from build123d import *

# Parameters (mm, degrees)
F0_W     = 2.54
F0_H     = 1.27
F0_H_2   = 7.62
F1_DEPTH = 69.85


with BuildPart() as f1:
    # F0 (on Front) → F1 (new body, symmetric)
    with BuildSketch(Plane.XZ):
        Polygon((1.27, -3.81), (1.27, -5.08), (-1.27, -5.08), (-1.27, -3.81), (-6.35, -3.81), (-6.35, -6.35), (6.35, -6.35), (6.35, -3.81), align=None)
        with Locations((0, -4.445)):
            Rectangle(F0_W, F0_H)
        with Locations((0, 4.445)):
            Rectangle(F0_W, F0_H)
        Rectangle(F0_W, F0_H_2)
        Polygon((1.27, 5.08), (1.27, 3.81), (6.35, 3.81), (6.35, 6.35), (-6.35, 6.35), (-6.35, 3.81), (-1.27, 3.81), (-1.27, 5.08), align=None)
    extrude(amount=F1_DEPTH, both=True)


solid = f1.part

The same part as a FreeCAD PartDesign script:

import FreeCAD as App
import Part
import Sketcher
from FreeCAD import Vector
Q = App.Units.Quantity


def add_polygon(sketch, points):
    """Adds a closed chain of lines whose ends are joined by coincident constraints."""
    first, n = sketch.GeometryCount, len(points)
    for a, b in zip(points, points[1:] + points[:1]):
        sketch.addGeometry(Part.LineSegment(App.Vector(*a, 0), App.Vector(*b, 0)), False)
    for i in range(n):
        sketch.addConstraint(Sketcher.Constraint("Coincident", first + i, 2, first + (i + 1) % n, 1))

doc = App.newDocument("Part")
body = doc.addObject("PartDesign::Body", "Body")

# Sketch on XZ plane
sketch1 = doc.addObject("Sketcher::SketchObject", "Sketch")
body.addObject(sketch1)
sketch1.AttachmentSupport = (doc.XZ_Plane, [""])
sketch1.MapMode = "FlatFace"
add_polygon(sketch1, [(-6.35, -3.81), (-6.35, -6.35), (6.35, -6.35), (6.35, -3.81), (1.27, -3.81), (1.27, 3.81), (6.35, 3.81), (6.35, 6.35), (-6.35, 6.35), (-6.35, 3.81), (-1.27, 3.81), (-1.27, -3.81)])  # lines 0-11
sketch1.addConstraint([
    Sketcher.Constraint("Vertical", 0),
    Sketcher.Constraint("Horizontal", 1),
    Sketcher.Constraint("Vertical", 2),
    Sketcher.Constraint("Horizontal", 3),
    Sketcher.Constraint("Vertical", 4),
    Sketcher.Constraint("Horizontal", 5),
    Sketcher.Constraint("Vertical", 6),
    Sketcher.Constraint("Horizontal", 7),
    Sketcher.Constraint("Vertical", 8),
    Sketcher.Constraint("Horizontal", 9),
    Sketcher.Constraint("Vertical", 10),
    Sketcher.Constraint("Horizontal", 11),
    Sketcher.Constraint("Symmetric", 0, 2, 6, 2, -1, 1),
    Sketcher.Constraint("Symmetric", 2, 2, 8, 2, -1, 1),
    Sketcher.Constraint("Symmetric", 4, 2, 10, 2, -1, 1),
    Sketcher.Constraint("Symmetric", 5, 2, 8, 2, -2),
    Sketcher.Constraint("DistanceX", 1, 1, 1, 2, Q("0.5 in")),
    Sketcher.Constraint("DistanceX", 3, 2, 3, 1, Q("0.2 in")),
    Sketcher.Constraint("DistanceY", 0, 2, 0, 1, Q("0.1 in")),
    Sketcher.Constraint("DistanceY", 4, 1, 4, 2, Q("0.3 in")),
])
pad1 = doc.addObject("PartDesign::Pad", "Pad")
body.addObject(pad1)
pad1.Profile = sketch1
pad1.Length = Q("5.5 in")
pad1.Midplane = True

doc.recompute()
